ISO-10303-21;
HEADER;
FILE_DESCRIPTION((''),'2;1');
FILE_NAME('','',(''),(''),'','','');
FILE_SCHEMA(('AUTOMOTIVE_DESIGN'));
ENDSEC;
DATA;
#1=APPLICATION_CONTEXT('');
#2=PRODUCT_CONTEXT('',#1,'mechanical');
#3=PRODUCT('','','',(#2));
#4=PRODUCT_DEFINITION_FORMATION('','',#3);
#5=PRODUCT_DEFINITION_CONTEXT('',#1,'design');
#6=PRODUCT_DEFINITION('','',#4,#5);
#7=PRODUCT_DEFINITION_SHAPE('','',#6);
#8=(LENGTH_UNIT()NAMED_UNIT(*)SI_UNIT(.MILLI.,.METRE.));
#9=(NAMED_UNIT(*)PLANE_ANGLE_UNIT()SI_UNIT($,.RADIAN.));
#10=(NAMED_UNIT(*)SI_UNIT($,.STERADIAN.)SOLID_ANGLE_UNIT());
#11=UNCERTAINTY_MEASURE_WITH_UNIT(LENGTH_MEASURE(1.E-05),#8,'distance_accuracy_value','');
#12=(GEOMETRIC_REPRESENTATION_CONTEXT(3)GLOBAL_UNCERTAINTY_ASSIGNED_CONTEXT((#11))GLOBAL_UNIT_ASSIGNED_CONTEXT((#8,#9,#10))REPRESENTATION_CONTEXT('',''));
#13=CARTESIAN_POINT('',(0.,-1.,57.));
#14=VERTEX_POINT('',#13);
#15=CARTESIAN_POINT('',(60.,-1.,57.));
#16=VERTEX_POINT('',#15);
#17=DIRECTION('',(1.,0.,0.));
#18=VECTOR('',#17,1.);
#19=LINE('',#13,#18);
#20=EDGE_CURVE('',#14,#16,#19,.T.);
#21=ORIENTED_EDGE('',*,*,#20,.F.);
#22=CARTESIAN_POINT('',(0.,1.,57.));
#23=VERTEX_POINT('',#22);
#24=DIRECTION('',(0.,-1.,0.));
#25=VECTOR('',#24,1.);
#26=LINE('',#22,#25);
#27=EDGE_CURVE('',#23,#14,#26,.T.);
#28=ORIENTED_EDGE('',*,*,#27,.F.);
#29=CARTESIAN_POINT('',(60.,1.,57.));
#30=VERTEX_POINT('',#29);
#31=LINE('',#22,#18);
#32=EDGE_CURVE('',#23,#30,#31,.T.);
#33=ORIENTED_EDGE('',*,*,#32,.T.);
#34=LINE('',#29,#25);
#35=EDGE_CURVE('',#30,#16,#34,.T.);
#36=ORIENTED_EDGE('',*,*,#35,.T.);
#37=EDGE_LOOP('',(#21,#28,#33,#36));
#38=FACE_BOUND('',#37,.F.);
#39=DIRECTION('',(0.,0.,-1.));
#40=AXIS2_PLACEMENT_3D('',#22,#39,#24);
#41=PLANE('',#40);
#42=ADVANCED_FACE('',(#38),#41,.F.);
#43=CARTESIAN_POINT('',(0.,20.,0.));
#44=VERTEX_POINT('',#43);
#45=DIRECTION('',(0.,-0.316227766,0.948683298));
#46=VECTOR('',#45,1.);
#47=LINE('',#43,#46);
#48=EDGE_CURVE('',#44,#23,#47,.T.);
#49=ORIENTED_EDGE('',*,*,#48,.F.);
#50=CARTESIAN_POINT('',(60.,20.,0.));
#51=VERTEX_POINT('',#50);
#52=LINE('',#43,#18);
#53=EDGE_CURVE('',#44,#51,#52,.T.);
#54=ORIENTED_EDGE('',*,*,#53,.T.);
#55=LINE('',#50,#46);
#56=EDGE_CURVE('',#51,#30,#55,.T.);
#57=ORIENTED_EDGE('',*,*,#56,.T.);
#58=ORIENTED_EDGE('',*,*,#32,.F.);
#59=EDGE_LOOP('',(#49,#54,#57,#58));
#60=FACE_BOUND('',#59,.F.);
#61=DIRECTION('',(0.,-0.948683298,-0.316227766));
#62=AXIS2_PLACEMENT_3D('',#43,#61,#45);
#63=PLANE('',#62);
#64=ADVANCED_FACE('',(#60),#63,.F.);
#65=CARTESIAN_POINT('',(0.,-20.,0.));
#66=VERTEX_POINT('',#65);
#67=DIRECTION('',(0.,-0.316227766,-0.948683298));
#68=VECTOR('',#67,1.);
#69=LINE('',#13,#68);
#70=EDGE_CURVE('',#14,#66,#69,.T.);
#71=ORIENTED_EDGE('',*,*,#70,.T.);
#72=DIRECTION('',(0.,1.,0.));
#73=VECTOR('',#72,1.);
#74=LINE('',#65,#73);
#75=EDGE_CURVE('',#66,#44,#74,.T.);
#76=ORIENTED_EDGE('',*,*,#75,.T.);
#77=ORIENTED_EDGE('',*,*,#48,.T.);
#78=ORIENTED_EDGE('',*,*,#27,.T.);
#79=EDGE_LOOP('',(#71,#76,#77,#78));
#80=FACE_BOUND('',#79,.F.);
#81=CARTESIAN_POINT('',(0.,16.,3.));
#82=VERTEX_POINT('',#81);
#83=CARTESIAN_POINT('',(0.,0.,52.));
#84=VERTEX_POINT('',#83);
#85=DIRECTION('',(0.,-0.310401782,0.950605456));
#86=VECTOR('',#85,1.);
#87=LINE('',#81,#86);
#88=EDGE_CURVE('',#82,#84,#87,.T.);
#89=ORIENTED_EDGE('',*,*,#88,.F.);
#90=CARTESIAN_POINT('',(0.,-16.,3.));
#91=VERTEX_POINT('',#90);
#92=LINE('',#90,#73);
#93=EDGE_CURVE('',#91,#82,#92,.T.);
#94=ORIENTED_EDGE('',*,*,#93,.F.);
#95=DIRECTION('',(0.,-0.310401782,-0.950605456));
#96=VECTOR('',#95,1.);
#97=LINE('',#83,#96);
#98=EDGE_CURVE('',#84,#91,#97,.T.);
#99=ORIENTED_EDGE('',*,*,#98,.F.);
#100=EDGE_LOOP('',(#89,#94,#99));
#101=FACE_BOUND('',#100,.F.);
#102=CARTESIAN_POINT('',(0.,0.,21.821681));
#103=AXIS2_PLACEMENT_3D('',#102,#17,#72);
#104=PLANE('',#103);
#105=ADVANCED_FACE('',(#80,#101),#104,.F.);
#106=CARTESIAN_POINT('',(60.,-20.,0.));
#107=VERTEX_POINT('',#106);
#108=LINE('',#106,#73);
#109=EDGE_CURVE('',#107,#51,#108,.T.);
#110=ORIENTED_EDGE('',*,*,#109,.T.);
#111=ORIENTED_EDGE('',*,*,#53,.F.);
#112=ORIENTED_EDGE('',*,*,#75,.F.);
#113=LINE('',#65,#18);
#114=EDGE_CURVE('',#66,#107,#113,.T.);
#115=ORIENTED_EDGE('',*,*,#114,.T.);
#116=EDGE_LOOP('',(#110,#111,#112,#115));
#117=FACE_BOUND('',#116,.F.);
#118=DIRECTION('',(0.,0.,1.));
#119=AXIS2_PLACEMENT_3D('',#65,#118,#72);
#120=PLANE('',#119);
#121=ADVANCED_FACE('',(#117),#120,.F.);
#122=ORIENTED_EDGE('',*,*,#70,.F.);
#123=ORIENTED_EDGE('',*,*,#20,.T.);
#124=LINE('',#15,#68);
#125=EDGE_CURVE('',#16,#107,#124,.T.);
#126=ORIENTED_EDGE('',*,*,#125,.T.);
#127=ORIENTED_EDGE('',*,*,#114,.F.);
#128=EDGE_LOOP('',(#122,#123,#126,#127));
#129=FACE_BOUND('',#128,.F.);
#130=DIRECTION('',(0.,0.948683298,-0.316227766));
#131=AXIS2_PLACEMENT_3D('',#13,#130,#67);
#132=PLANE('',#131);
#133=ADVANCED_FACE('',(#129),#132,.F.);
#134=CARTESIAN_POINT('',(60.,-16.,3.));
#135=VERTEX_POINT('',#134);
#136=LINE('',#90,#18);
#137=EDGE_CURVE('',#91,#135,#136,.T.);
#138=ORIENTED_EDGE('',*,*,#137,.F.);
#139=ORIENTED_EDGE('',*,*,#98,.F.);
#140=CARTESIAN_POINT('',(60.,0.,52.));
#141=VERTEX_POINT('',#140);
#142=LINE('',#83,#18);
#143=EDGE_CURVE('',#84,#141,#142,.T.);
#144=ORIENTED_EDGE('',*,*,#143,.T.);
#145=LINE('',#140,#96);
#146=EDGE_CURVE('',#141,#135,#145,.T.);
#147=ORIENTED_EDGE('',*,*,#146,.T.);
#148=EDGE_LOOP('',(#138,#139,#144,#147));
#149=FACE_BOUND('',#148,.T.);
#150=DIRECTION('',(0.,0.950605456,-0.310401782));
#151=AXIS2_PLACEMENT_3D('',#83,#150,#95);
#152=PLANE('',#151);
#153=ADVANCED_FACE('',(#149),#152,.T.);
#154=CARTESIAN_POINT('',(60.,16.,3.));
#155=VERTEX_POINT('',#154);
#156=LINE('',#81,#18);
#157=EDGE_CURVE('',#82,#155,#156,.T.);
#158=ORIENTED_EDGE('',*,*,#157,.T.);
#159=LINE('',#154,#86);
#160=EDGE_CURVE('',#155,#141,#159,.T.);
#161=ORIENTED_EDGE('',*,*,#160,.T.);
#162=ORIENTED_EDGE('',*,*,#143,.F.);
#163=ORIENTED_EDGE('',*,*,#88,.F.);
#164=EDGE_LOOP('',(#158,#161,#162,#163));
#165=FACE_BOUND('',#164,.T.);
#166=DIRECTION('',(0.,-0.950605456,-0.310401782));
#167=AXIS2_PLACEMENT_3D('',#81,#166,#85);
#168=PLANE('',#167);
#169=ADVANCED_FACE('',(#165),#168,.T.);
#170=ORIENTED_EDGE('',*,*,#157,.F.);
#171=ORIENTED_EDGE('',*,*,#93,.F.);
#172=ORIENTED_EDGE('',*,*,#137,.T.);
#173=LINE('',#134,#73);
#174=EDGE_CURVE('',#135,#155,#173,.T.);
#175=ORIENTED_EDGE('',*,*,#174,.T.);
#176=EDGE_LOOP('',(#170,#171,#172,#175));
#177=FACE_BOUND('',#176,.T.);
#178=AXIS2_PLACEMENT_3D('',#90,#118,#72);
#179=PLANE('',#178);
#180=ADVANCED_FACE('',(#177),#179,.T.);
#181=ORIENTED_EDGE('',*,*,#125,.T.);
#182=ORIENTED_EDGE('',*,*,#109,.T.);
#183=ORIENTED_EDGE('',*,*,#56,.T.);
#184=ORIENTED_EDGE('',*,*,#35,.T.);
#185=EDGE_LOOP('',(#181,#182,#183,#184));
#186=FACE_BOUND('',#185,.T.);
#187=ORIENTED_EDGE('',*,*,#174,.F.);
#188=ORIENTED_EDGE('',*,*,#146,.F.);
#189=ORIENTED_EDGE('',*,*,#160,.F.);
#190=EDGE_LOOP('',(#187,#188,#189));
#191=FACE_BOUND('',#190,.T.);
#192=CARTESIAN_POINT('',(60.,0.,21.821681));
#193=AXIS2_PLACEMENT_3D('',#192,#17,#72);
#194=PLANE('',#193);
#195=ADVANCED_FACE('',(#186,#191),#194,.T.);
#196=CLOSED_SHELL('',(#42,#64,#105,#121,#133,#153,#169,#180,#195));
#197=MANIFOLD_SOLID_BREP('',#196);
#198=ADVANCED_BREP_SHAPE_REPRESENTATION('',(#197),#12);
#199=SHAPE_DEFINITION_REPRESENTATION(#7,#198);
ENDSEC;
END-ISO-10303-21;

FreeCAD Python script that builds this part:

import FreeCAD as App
import Part
import Sketcher

V = App.Vector


def add_polygon(sketch, points):
    """Adds a closed chain of lines whose ends are joined by coincident constraints."""
    first, n = sketch.GeometryCount, len(points)
    for a, b in zip(points, points[1:] + points[:1]):
        sketch.addGeometry(Part.LineSegment(App.Vector(*a, 0), App.Vector(*b, 0)), False)
    for i in range(n):
        sketch.addConstraint(Sketcher.Constraint("Coincident", first + i, 2, first + (i + 1) % n, 1))

doc = App.newDocument("Part")
body = doc.addObject("PartDesign::Body", "Body")

# Sketch on YZ plane
sketch1 = body.newObject("Sketcher::SketchObject", "Sketch")
sketch1.AttachmentSupport = (doc.getObject("YZ_Plane"), [""])
sketch1.MapMode = "FlatFace"
add_polygon(sketch1, [(-20, 0), (20, 0), (1, 57), (-1, 57)])  # lines 0-3
add_polygon(sketch1, [(16, 3), (-16, 3), (0, 52)])  # lines 4-6
sketch1.addConstraint([
    Sketcher.Constraint("Horizontal", 0),
    Sketcher.Constraint("Horizontal", 2),
    Sketcher.Constraint("Horizontal", 4),
    Sketcher.Constraint("Symmetric", 0, 2, 3, 2, -1, 1),
    Sketcher.Constraint("PointOnObject", 5, 2, -2),
    Sketcher.Constraint("Equal", 1, 3),
    Sketcher.Constraint("Equal", 5, 6),
    Sketcher.Constraint("DistanceX", 0, 1, 0, 2, 40.0),
    Sketcher.Constraint("DistanceX", 2, 2, 2, 1, 2.0),
    Sketcher.Constraint("DistanceX", 4, 2, 4, 1, 32.0),
    Sketcher.Constraint("DistanceY", -1, 1, 1, 2, 57.0),
    Sketcher.Constraint("DistanceY", -1, 1, 4, 2, 3.0),
    Sketcher.Constraint("DistanceY", -1, 1, 5, 2, 52.0),
])
pad1 = body.newObject("PartDesign::Pad", "Pad")
pad1.Profile = sketch1
pad1.Length = 60

doc.recompute()
